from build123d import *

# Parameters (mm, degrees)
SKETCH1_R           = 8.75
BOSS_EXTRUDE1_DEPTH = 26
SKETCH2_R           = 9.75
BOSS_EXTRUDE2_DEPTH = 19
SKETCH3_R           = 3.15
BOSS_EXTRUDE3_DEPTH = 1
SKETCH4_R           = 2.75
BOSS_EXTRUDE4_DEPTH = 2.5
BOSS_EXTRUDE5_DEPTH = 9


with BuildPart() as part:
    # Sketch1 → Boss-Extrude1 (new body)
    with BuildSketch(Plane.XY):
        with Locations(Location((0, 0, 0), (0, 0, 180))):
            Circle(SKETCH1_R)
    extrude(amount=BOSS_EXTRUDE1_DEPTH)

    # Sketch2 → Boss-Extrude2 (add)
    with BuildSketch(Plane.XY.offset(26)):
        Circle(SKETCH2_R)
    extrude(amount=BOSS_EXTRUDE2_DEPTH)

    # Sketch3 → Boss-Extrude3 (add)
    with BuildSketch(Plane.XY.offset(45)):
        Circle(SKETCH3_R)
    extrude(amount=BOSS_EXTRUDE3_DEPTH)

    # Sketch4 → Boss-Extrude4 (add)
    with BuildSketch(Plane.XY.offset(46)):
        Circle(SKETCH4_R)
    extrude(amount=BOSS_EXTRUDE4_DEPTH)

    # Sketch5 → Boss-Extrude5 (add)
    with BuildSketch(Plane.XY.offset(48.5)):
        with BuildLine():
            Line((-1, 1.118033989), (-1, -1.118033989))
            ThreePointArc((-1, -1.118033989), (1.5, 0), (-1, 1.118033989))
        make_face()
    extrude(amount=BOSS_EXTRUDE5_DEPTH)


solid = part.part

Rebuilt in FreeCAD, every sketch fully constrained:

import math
import FreeCAD as App
import Part
import Sketcher

V = App.Vector

doc = App.newDocument("Part")
body = doc.addObject("PartDesign::Body", "Body")

sketch1 = body.newObject("Sketcher::SketchObject", "Sketch")
sketch1.AttachmentSupport = (doc.getObject("XY_Plane"), [""])
sketch1.MapMode = "FlatFace"
sketch1.addGeometry(Part.Circle(V(0, 0, 0), V(0, 0, 1), 8.75), False)
sketch1.addConstraint([
    Sketcher.Constraint("Coincident", 0, 3, -1, 1),
    Sketcher.Constraint("Diameter", 0, 17.5),
])
pad1 = body.newObject("PartDesign::Pad", "Pad")
pad1.Profile = sketch1
pad1.Length = 26

sketch2 = body.newObject("Sketcher::SketchObject", "Sketch001")
sketch2.AttachmentSupport = (doc.getObject("XY_Plane"), [""])
sketch2.MapMode = "FlatFace"
sketch2.AttachmentOffset = App.Placement(V(0, 0, 26), App.Rotation())
sketch2.addGeometry(Part.Circle(V(0, 0, 0), V(0, 0, 1), 9.75), False)
sketch2.addConstraint([
    Sketcher.Constraint("Coincident", 0, 3, -1, 1),
    Sketcher.Constraint("Diameter", 0, 19.5),
])
pad2 = body.newObject("PartDesign::Pad", "Pad001")
pad2.Profile = sketch2
pad2.Length = 19

sketch3 = body.newObject("Sketcher::SketchObject", "Sketch002")
sketch3.AttachmentSupport = (doc.getObject("XY_Plane"), [""])
sketch3.MapMode = "FlatFace"
sketch3.AttachmentOffset = App.Placement(V(0, 0, 45), App.Rotation())
sketch3.addGeometry(Part.Circle(V(0, 0, 0), V(0, 0, 1), 3.15), False)
sketch3.addConstraint([
    Sketcher.Constraint("Coincident", 0, 3, -1, 1),
    Sketcher.Constraint("Diameter", 0, 6.3),
])
pad3 = body.newObject("PartDesign::Pad", "Pad002")
pad3.Profile = sketch3
pad3.Length = 1

sketch4 = body.newObject("Sketcher::SketchObject", "Sketch003")
sketch4.AttachmentSupport = (doc.getObject("XY_Plane"), [""])
sketch4.MapMode = "FlatFace"
sketch4.AttachmentOffset = App.Placement(V(0, 0, 46), App.Rotation())
sketch4.addGeometry(Part.Circle(V(0, 0, 0), V(0, 0, 1), 2.75), False)
sketch4.addConstraint([
    Sketcher.Constraint("Coincident", 0, 3, -1, 1),
    Sketcher.Constraint("Diameter", 0, 5.5),
])
pad4 = body.newObject("PartDesign::Pad", "Pad003")
pad4.Profile = sketch4
pad4.Length = 2.5

sketch5 = body.newObject("Sketcher::SketchObject", "Sketch004")
sketch5.AttachmentSupport = (doc.getObject("XY_Plane"), [""])
sketch5.MapMode = "FlatFace"
sketch5.AttachmentOffset = App.Placement(V(0, 0, 48.5), App.Rotation())
sketch5.addGeometry([
    Part.LineSegment(V(-1, 1.118034, 0), V(-1, -1.118034, 0)),
    Part.ArcOfCircle(Part.Circle(V(0, 0, 0), V(0, 0, 1), 1.5), math.radians(-131.810315), math.radians(131.810315)),
], False)
sketch5.addConstraint([
    Sketcher.Constraint("Coincident", 0, 1, 1, 2),
    Sketcher.Constraint("Coincident", 1, 1, 0, 2),
    Sketcher.Constraint("Vertical", 0),
    Sketcher.Constraint("Coincident", 1, 3, -1, 1),
    Sketcher.Constraint("Radius", 1, 1.5),
    Sketcher.Constraint("DistanceX", 0, 1, -1, 1, 1.0),
])
pad5 = body.newObject("PartDesign::Pad", "Pad004")
pad5.Profile = sketch5
pad5.Length = 9

doc.recompute()
